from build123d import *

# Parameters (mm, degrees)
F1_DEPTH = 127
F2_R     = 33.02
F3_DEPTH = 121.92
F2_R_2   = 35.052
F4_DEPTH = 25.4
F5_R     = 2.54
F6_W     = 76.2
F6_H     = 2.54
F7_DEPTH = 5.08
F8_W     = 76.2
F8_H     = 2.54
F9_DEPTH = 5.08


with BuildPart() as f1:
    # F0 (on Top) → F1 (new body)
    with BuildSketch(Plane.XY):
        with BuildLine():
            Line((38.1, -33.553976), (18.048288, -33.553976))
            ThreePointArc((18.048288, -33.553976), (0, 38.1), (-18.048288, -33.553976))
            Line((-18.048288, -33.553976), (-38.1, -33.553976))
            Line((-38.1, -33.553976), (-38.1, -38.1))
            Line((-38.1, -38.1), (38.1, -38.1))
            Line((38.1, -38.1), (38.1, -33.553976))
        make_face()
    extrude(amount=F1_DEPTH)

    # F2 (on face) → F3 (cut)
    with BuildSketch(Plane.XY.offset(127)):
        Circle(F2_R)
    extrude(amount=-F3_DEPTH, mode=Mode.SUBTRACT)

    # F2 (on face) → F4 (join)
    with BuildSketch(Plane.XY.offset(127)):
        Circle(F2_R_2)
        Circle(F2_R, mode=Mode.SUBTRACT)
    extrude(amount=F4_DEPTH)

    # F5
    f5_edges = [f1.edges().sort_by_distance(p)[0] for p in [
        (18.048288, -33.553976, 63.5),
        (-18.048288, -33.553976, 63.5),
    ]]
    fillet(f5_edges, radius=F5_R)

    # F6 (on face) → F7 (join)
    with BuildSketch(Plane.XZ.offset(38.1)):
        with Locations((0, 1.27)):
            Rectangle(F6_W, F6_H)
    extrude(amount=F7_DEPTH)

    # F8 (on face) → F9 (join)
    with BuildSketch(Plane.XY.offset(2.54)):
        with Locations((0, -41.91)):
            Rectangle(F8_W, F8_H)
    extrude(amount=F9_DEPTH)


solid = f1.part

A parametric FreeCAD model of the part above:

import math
import FreeCAD as App
import Part
import Sketcher
Q = App.Units.Quantity


def edges_at(feature, points):
    """Names of the edges that pass closest to the given points."""
    edges = feature.Shape.Edges
    near = lambda p: min(range(len(edges)), key=lambda i: edges[i].distToShape(Part.Vertex(*p))[0])
    return sorted({f"Edge{near(p) + 1}" for p in points})


def add_polygon(sketch, points):
    """Adds a closed chain of lines whose ends are joined by coincident constraints."""
    first, n = sketch.GeometryCount, len(points)
    for a, b in zip(points, points[1:] + points[:1]):
        sketch.addGeometry(Part.LineSegment(App.Vector(*a, 0), App.Vector(*b, 0)), False)
    for i in range(n):
        sketch.addConstraint(Sketcher.Constraint("Coincident", first + i, 2, first + (i + 1) % n, 1))

doc = App.newDocument("Part")
body = doc.addObject("PartDesign::Body", "Body")

sketch1 = doc.addObject("Sketcher::SketchObject", "Sketch")
body.addObject(sketch1)
sketch1.AttachmentSupport = (doc.XY_Plane, [""])
sketch1.MapMode = "FlatFace"
sketch1.addGeometry([
    Part.LineSegment(App.Vector(38.1, -33.553976, 0), App.Vector(18.048288, -33.553976, 0)),
    Part.ArcOfCircle(Part.Circle(App.Vector(0, 0, 0), App.Vector(0, 0, 1), 38.1), math.radians(-61.724716), math.radians(241.724716)),
    Part.LineSegment(App.Vector(-18.048288, -33.553976, 0), App.Vector(-38.1, -33.553976, 0)),
    Part.LineSegment(App.Vector(-38.1, -33.553976, 0), App.Vector(-38.1, -38.1, 0)),
    Part.LineSegment(App.Vector(-38.1, -38.1, 0), App.Vector(38.1, -38.1, 0)),
    Part.LineSegment(App.Vector(38.1, -38.1, 0), App.Vector(38.1, -33.553976, 0)),
], False)
sketch1.addConstraint([
    Sketcher.Constraint("Coincident", 0, 2, 1, 1),
    Sketcher.Constraint("Coincident", 1, 2, 2, 1),
    Sketcher.Constraint("Coincident", 2, 2, 3, 1),
    Sketcher.Constraint("Coincident", 3, 2, 4, 1),
    Sketcher.Constraint("Coincident", 4, 2, 5, 1),
    Sketcher.Constraint("Coincident", 5, 2, 0, 1),
    Sketcher.Constraint("Horizontal", 0),
    Sketcher.Constraint("Horizontal", 2),
    Sketcher.Constraint("Vertical", 3),
    Sketcher.Constraint("Horizontal", 4),
    Sketcher.Constraint("Vertical", 5),
    Sketcher.Constraint("Coincident", 1, 3, -1, 1),
    Sketcher.Constraint("Symmetric", 2, 2, 5, 2, -2),
    Sketcher.Constraint("Radius", 1, Q("1.5 in")),
    Sketcher.Constraint("DistanceX", 4, 1, 4, 2, Q("3 in")),
    Sketcher.Constraint("DistanceY", 3, 2, -1, 1, Q("1.5 in")),
    Sketcher.Constraint("DistanceX", 0, 2, 0, 1, Q("20.051712 mm")),
])
pad1 = doc.addObject("PartDesign::Pad", "Pad")
body.addObject(pad1)
pad1.Profile = sketch1
pad1.Length = Q("5 in")

sketch2 = doc.addObject("Sketcher::SketchObject", "Sketch001")
body.addObject(sketch2)
sketch2.AttachmentSupport = (doc.XY_Plane, [""])
sketch2.MapMode = "FlatFace"
sketch2.AttachmentOffset = App.Placement(App.Vector(0, 0, 5 * 25.4), App.Rotation())
sketch2.addGeometry(Part.Circle(App.Vector(0, 0, 0), App.Vector(0, 0, 1), 33.02), False)
sketch2.addConstraint([
    Sketcher.Constraint("Coincident", 0, 3, -1, 1),
    Sketcher.Constraint("Diameter", 0, Q("2.6 in")),
])
pocket1 = doc.addObject("PartDesign::Pocket", "Pocket")
body.addObject(pocket1)
pocket1.Profile = sketch2
pocket1.Length = Q("4.8 in")

sketch3 = doc.addObject("Sketcher::SketchObject", "Sketch002")
body.addObject(sketch3)
sketch3.AttachmentSupport = (doc.XY_Plane, [""])
sketch3.MapMode = "FlatFace"
sketch3.AttachmentOffset = App.Placement(App.Vector(0, 0, 5 * 25.4), App.Rotation())
sketch3.addGeometry([
    Part.Circle(App.Vector(0, 0, 0), App.Vector(0, 0, 1), 35.052),
    Part.Circle(App.Vector(0, 0, 0), App.Vector(0, 0, 1), 33.02),
], False)
sketch3.addConstraint([
    Sketcher.Constraint("Coincident", 0, 3, -1, 1),
    Sketcher.Constraint("Coincident", 1, 3, -1, 1),
    Sketcher.Constraint("Diameter", 1, Q("2.6 in")),
    Sketcher.Constraint("Diameter", 0, Q("2.76 in")),
])
pad2 = doc.addObject("PartDesign::Pad", "Pad001")
body.addObject(pad2)
pad2.Profile = sketch3
pad2.Length = Q("1 in")
doc.recompute()

fillet = doc.addObject("PartDesign::Fillet", "Fillet")
body.addObject(fillet)
fillet.Base = (pad2, edges_at(pad2, [(18.048, -33.554, 63.5), (-18.048, -33.554, 63.5)]))
fillet.Radius = Q("0.1 in")

sketch4 = doc.addObject("Sketcher::SketchObject", "Sketch003")
body.addObject(sketch4)
sketch4.AttachmentSupport = (doc.XZ_Plane, [""])
sketch4.MapMode = "FlatFace"
sketch4.AttachmentOffset = App.Placement(App.Vector(0, 0, 1.5 * 25.4), App.Rotation())
add_polygon(sketch4, [(-38.1, 2.54), (-38.1, 0), (38.1, 0), (38.1, 2.54)])
sketch4.addConstraint([
    Sketcher.Constraint("Vertical", 0),
    Sketcher.Constraint("Horizontal", 1),
    Sketcher.Constraint("Vertical", 2),
    Sketcher.Constraint("Horizontal", 3),
    Sketcher.Constraint("Symmetric", 0, 2, 1, 2, -1, 1),
    Sketcher.Constraint("DistanceX", 1, 1, 1, 2, Q("3 in")),
    Sketcher.Constraint("DistanceY", 0, 2, 0, 1, Q("0.1 in")),
])
pad3 = doc.addObject("PartDesign::Pad", "Pad002")
body.addObject(pad3)
pad3.Profile = sketch4
pad3.Length = Q("0.2 in")

sketch5 = doc.addObject("Sketcher::SketchObject", "Sketch004")
body.addObject(sketch5)
sketch5.AttachmentSupport = (doc.XY_Plane, [""])
sketch5.MapMode = "FlatFace"
sketch5.AttachmentOffset = App.Placement(App.Vector(0, 0, 0.1 * 25.4), App.Rotation())
add_polygon(sketch5, [(-38.1, -40.64), (-38.1, -43.18), (38.1, -43.18), (38.1, -40.64)])
sketch5.addConstraint([
    Sketcher.Constraint("Vertical", 0),
    Sketcher.Constraint("Horizontal", 1),
    Sketcher.Constraint("Vertical", 2),
    Sketcher.Constraint("Horizontal", 3),
    Sketcher.Constraint("DistanceX", 1, 1, 1, 2, Q("3 in")),
    Sketcher.Constraint("DistanceY", 0, 2, 0, 1, Q("0.1 in")),
    Sketcher.Constraint("DistanceX", 0, 2, -1, 1, Q("1.5 in")),
    Sketcher.Constraint("DistanceY", 0, 2, -1, 1, Q("1.7 in")),
])
pad4 = doc.addObject("PartDesign::Pad", "Pad003")
body.addObject(pad4)
pad4.Profile = sketch5
pad4.Length = Q("0.2 in")

doc.recompute()
